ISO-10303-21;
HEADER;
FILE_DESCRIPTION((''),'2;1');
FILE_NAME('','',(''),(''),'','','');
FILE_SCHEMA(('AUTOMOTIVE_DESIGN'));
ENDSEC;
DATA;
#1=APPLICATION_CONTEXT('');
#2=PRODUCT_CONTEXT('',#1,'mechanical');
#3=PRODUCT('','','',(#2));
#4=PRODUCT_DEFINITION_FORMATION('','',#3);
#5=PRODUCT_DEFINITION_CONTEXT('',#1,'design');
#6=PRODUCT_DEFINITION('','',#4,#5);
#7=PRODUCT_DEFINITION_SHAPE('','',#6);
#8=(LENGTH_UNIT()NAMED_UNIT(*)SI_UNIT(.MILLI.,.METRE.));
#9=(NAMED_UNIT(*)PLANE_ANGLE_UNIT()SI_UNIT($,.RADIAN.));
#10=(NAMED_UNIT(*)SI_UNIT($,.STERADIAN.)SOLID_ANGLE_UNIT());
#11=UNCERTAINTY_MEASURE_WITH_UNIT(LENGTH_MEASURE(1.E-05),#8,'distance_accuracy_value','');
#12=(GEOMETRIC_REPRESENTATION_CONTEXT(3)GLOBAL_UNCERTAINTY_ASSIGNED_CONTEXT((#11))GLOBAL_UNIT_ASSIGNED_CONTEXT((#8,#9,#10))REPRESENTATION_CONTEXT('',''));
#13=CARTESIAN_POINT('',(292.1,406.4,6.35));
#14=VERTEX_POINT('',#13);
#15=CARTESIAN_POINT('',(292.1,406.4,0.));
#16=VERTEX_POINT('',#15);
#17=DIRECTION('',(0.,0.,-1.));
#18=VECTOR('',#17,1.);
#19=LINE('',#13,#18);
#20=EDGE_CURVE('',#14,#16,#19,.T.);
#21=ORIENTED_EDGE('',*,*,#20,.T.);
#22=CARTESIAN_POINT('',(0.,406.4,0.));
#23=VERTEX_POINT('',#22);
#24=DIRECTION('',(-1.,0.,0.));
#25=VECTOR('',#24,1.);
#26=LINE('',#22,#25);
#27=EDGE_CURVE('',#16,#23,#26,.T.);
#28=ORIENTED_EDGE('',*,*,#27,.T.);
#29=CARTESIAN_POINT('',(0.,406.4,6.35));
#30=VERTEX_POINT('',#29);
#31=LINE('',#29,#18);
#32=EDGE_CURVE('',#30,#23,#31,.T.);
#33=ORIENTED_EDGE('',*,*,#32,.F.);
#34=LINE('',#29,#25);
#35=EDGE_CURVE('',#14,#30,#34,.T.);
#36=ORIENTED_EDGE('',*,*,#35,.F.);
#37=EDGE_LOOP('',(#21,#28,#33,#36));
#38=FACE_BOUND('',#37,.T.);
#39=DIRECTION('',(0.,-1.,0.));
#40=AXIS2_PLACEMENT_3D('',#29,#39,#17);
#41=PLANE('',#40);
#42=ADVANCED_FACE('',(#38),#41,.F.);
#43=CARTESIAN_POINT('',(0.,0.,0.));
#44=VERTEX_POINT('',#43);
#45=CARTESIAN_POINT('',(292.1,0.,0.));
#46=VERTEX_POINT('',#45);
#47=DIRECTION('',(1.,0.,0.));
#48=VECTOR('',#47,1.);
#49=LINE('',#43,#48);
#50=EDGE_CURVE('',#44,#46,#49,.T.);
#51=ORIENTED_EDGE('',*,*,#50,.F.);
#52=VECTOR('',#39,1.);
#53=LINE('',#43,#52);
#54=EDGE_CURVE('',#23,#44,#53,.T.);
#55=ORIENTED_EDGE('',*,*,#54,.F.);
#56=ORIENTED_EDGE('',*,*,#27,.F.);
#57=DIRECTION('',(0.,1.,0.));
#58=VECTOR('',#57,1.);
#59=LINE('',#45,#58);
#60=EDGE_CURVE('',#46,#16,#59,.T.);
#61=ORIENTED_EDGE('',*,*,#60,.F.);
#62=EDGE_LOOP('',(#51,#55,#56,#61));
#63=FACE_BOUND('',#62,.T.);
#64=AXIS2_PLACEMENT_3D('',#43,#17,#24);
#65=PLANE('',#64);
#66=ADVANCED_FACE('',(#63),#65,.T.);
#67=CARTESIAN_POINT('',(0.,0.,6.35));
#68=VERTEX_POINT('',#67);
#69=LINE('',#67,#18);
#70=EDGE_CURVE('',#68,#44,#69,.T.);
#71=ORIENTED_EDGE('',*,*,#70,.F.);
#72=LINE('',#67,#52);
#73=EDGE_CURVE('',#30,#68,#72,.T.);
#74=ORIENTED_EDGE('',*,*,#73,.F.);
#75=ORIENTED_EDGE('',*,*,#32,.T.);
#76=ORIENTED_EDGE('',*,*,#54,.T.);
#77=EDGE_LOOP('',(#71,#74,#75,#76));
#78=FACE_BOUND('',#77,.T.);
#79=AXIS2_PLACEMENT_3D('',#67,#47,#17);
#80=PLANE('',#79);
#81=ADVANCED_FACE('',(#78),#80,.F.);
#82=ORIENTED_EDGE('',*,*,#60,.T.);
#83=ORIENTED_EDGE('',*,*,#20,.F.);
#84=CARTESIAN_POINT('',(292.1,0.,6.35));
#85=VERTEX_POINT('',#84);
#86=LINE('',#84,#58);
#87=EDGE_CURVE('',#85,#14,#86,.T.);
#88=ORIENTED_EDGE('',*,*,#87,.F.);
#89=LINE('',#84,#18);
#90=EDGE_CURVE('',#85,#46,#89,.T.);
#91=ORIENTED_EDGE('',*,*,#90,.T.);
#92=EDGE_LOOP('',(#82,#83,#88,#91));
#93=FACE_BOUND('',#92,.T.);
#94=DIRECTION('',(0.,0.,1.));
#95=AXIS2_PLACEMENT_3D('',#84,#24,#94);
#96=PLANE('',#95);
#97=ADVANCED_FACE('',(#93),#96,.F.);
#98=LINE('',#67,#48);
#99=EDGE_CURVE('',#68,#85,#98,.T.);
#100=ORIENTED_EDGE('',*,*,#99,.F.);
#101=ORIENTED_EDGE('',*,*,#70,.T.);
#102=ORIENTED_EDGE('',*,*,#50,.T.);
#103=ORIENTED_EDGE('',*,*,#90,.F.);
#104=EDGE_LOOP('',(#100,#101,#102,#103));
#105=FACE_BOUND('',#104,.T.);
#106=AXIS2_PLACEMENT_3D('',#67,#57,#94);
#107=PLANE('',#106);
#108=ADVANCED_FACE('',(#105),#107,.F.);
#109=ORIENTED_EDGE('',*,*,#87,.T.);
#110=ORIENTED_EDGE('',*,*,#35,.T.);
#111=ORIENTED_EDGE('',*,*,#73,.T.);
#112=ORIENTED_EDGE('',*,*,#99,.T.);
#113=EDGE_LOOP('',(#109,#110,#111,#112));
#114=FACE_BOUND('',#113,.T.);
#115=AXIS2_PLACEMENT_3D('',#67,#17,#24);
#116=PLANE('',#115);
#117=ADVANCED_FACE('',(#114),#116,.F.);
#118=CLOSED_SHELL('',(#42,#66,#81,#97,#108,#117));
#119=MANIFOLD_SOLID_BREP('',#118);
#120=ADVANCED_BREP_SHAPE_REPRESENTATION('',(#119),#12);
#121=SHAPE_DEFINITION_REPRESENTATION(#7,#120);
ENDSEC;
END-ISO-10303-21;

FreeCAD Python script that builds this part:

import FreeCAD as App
import Part
import Sketcher
Q = App.Units.Quantity


def add_polygon(sketch, points):
    """Adds a closed chain of lines whose ends are joined by coincident constraints."""
    first, n = sketch.GeometryCount, len(points)
    for a, b in zip(points, points[1:] + points[:1]):
        sketch.addGeometry(Part.LineSegment(App.Vector(*a, 0), App.Vector(*b, 0)), False)
    for i in range(n):
        sketch.addConstraint(Sketcher.Constraint("Coincident", first + i, 2, first + (i + 1) % n, 1))

doc = App.newDocument("Part")
body = doc.addObject("PartDesign::Body", "Body")

sketch1 = body.newObject("Sketcher::SketchObject", "Sketch")
sketch1.AttachmentSupport = (doc.getObject("XY_Plane"), [""])
sketch1.MapMode = "FlatFace"
add_polygon(sketch1, [(0, 406), (0, 0), (292, 0), (292, 406)])
sketch1.addConstraint([
    Sketcher.Constraint("Vertical", 0),
    Sketcher.Constraint("Horizontal", 1),
    Sketcher.Constraint("Vertical", 2),
    Sketcher.Constraint("Horizontal", 3),
    Sketcher.Constraint("Coincident", 0, 2, -1, 1),
    Sketcher.Constraint("DistanceY", 0, 2, 0, 1, Q("16 in")),
    Sketcher.Constraint("DistanceX", 1, 1, 1, 2, Q("11.5 in")),
])
pad1 = body.newObject("PartDesign::Pad", "Pad")
pad1.Profile = sketch1
pad1.Length = Q("0.25 in")

doc.recompute()
